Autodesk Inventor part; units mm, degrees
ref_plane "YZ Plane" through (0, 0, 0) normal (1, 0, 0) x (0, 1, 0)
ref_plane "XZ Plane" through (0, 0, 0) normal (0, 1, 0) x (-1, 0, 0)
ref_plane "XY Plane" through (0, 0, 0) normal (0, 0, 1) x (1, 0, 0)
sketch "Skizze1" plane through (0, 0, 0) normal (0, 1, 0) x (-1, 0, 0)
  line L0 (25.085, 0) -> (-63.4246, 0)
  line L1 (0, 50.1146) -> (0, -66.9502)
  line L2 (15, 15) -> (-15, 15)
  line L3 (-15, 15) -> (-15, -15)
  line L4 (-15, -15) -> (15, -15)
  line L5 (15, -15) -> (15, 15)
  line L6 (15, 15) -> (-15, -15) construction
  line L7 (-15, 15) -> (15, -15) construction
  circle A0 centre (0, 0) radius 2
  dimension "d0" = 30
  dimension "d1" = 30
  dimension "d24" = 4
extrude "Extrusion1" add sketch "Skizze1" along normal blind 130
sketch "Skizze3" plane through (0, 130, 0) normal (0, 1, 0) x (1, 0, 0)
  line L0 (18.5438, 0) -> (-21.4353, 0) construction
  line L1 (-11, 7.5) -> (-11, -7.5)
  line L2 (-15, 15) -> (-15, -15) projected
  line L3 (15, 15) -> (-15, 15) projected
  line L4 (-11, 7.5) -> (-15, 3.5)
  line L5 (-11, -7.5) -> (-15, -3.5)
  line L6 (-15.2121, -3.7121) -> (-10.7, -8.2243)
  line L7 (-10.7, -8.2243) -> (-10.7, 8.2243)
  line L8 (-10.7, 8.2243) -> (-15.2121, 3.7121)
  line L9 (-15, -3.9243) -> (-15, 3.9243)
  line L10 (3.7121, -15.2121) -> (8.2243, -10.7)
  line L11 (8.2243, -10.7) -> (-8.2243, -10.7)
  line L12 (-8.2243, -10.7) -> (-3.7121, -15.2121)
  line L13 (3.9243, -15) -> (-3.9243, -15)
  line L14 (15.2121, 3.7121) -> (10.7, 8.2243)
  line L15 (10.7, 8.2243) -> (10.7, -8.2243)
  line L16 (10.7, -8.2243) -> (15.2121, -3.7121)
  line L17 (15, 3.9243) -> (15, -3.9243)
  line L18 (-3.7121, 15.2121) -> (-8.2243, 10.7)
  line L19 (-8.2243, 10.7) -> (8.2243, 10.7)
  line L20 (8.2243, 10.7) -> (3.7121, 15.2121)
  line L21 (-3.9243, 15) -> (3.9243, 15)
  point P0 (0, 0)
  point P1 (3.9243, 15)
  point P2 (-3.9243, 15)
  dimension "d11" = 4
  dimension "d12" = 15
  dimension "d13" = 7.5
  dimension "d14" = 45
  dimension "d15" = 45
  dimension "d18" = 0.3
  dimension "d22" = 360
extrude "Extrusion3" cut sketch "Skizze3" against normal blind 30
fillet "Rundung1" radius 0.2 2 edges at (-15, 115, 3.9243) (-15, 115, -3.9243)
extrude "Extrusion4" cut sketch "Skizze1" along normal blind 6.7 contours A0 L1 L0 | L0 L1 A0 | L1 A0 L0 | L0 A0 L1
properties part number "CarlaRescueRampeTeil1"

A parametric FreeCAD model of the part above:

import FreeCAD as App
import Part
import Sketcher

V = App.Vector


def edges_at(feature, points):
    """Names of the edges that pass closest to the given points."""
    edges = feature.Shape.Edges
    near = lambda p: min(range(len(edges)), key=lambda i: edges[i].distToShape(Part.Vertex(*p))[0])
    return sorted({f"Edge{near(p) + 1}" for p in points})

doc = App.newDocument("Part")
params = doc.addObject("Spreadsheet::Sheet", "Params")
for row, (alias, value) in enumerate([
    ("sketch1_width", "30 mm"),
    ("pad1_length", "130 mm"),
    ("pocket1_length", "30 mm"),
    ("fillet_radius", "0.2 mm"),
    ("sketch3_diameter", "4 mm"),
    ("pocket2_length", "6.7 mm"),
], start=1):
    params.set(f"A{row}", alias)
    params.set(f"B{row}", "=" + value)
    params.setAlias(f"B{row}", alias)

body = doc.addObject("PartDesign::Body", "Body")

# Sketch on XZ plane
sketch1 = body.newObject("Sketcher::SketchObject", "Sketch")
sketch1.AttachmentSupport = (doc.getObject("XZ_Plane"), [""])
sketch1.MapMode = "FlatFace"
sketch1.addGeometry([
    Part.LineSegment(V(-15, -15, 0), V(-15, 15, 0)),
    Part.LineSegment(V(-15, 15, 0), V(15, 15, 0)),
    Part.LineSegment(V(15, 15, 0), V(15, -15, 0)),
    Part.LineSegment(V(15, -15, 0), V(-15, -15, 0)),
], False)
sketch1.addConstraint([
    Sketcher.Constraint("Coincident", 0, 2, 1, 1),
    Sketcher.Constraint("Coincident", 1, 2, 2, 1),
    Sketcher.Constraint("Coincident", 2, 2, 3, 1),
    Sketcher.Constraint("Coincident", 3, 2, 0, 1),
    Sketcher.Constraint("Vertical", 0),
    Sketcher.Constraint("Horizontal", 1),
    Sketcher.Constraint("Vertical", 2),
    Sketcher.Constraint("Horizontal", 3),
    Sketcher.Constraint("Symmetric", 0, 2, 2, 2, -1, 1),
    Sketcher.Constraint("Equal", 3, 0),
    Sketcher.Constraint("DistanceX", 1, 1, 1, 2, 30.0),
])
sketch1.setExpression("Constraints[10]", "Params.sketch1_width")
pad1 = body.newObject("PartDesign::Pad", "Pad")
pad1.Profile = sketch1
pad1.setExpression("Length", "Params.pad1_length")
pad1.Reversed = True

# Sketch on XZ plane
sketch2 = body.newObject("Sketcher::SketchObject", "Sketch001")
sketch2.AttachmentSupport = (doc.getObject("XZ_Plane"), [""])
sketch2.MapMode = "FlatFace"
sketch2.AttachmentOffset = App.Placement(V(0, 0, -130), App.Rotation())
sketch2.addGeometry([
    Part.LineSegment(V(-15, -4, 0), V(-15, 4, 0)),  # 0
    Part.LineSegment(V(-15, 4, 0), V(-11, 8, 0)),  # 1
    Part.LineSegment(V(-11, 8, 0), V(-11, -8, 0)),  # 2
    Part.LineSegment(V(-11, -8, 0), V(-15, -4, 0)),  # 3
    Part.LineSegment(V(4, -15, 0), V(-4, -15, 0)),  # 4
    Part.LineSegment(V(-4, -15, 0), V(-8, -11, 0)),  # 5
    Part.LineSegment(V(-8, -11, 0), V(8, -11, 0)),  # 6
    Part.LineSegment(V(8, -11, 0), V(4, -15, 0)),  # 7
    Part.LineSegment(V(-4, 15, 0), V(4, 15, 0)),  # 8
    Part.LineSegment(V(4, 15, 0), V(8, 11, 0)),  # 9
    Part.LineSegment(V(8, 11, 0), V(-8, 11, 0)),  # 10
    Part.LineSegment(V(-8, 11, 0), V(-4, 15, 0)),  # 11
    Part.LineSegment(V(15, 4, 0), V(15, -4, 0)),  # 12
    Part.LineSegment(V(15, -4, 0), V(11, -8, 0)),  # 13
    Part.LineSegment(V(11, -8, 0), V(11, 8, 0)),  # 14
    Part.LineSegment(V(11, 8, 0), V(15, 4, 0)),  # 15
], False)
sketch2.addConstraint([
    Sketcher.Constraint("Coincident", 0, 2, 1, 1),
    Sketcher.Constraint("Coincident", 1, 2, 2, 1),
    Sketcher.Constraint("Coincident", 2, 2, 3, 1),
    Sketcher.Constraint("Coincident", 3, 2, 0, 1),
    Sketcher.Constraint("Coincident", 4, 2, 5, 1),
    Sketcher.Constraint("Coincident", 5, 2, 6, 1),
    Sketcher.Constraint("Coincident", 6, 2, 7, 1),
    Sketcher.Constraint("Coincident", 7, 2, 4, 1),
    Sketcher.Constraint("Coincident", 8, 2, 9, 1),
    Sketcher.Constraint("Coincident", 9, 2, 10, 1),
    Sketcher.Constraint("Coincident", 10, 2, 11, 1),
    Sketcher.Constraint("Coincident", 11, 2, 8, 1),
    Sketcher.Constraint("Coincident", 12, 2, 13, 1),
    Sketcher.Constraint("Coincident", 13, 2, 14, 1),
    Sketcher.Constraint("Coincident", 14, 2, 15, 1),
    Sketcher.Constraint("Coincident", 15, 2, 12, 1),
    Sketcher.Constraint("Vertical", 0),
    Sketcher.Constraint("Vertical", 2),
    Sketcher.Constraint("Horizontal", 4),
    Sketcher.Constraint("Horizontal", 6),
    Sketcher.Constraint("Horizontal", 8),
    Sketcher.Constraint("Horizontal", 10),
    Sketcher.Constraint("Vertical", 12),
    Sketcher.Constraint("Vertical", 14),
    Sketcher.Constraint("Symmetric", 4, 2, 8, 2, -1, 1),
    Sketcher.Constraint("Symmetric", 5, 2, 9, 2, -1, 1),
    Sketcher.Constraint("Symmetric", 0, 2, 12, 2, -1, 1),
    Sketcher.Constraint("Symmetric", 1, 2, 13, 2, -1, 1),
    Sketcher.Constraint("Perpendicular", 1, 3),
    Sketcher.Constraint("Parallel", 3, 5),
    Sketcher.Constraint("Perpendicular", 5, 7),
    Sketcher.Constraint("Perpendicular", 9, 11),
    Sketcher.Constraint("Perpendicular", 13, 15),
    Sketcher.Constraint("Horizontal", 3, 2, 12, 2),
    Sketcher.Constraint("Horizontal", 2, 2, 13, 2),
    Sketcher.Constraint("Horizontal", 1, 2, 14, 2),
    Sketcher.Constraint("Vertical", 7, 2, 8, 2),
    Sketcher.Constraint("Vertical", 5, 2, 10, 2),
    Sketcher.Constraint("Equal", 8, 0),
    Sketcher.Constraint("Equal", 10, 2),
    Sketcher.Constraint("DistanceX", 0, 2, -1, 1, 15.0),
    Sketcher.Constraint("DistanceY", 4, 2, -1, 1, 15.0),
    Sketcher.Constraint("DistanceX", 1, 2, -1, 1, 10.7),
    Sketcher.Constraint("DistanceX", 4, 2, 4, 1, 7.8486),
])
pocket1 = body.newObject("PartDesign::Pocket", "Pocket")
pocket1.Profile = sketch2
pocket1.setExpression("Length", "Params.pocket1_length")
pocket1.Reversed = True
doc.recompute()

fillet = body.newObject("PartDesign::Fillet", "Fillet")
fillet.Base = (pocket1, edges_at(pocket1, [(-15, 115, 3.924), (-15, 115, -3.924)]))
fillet.setExpression("Radius", "Params.fillet_radius")

# Sketch on XZ plane
sketch3 = body.newObject("Sketcher::SketchObject", "Sketch002")
sketch3.AttachmentSupport = (doc.getObject("XZ_Plane"), [""])
sketch3.MapMode = "FlatFace"
sketch3.addGeometry(Part.Circle(V(0, 0, 0), V(0, 0, 1), 2), False)
sketch3.addConstraint([
    Sketcher.Constraint("Coincident", 0, 3, -1, 1),
    Sketcher.Constraint("Diameter", 0, 4.0),
])
sketch3.setExpression("Constraints[1]", "Params.sketch3_diameter")
pocket2 = body.newObject("PartDesign::Pocket", "Pocket001")
pocket2.Profile = sketch3
pocket2.setExpression("Length", "Params.pocket2_length")

doc.recompute()
